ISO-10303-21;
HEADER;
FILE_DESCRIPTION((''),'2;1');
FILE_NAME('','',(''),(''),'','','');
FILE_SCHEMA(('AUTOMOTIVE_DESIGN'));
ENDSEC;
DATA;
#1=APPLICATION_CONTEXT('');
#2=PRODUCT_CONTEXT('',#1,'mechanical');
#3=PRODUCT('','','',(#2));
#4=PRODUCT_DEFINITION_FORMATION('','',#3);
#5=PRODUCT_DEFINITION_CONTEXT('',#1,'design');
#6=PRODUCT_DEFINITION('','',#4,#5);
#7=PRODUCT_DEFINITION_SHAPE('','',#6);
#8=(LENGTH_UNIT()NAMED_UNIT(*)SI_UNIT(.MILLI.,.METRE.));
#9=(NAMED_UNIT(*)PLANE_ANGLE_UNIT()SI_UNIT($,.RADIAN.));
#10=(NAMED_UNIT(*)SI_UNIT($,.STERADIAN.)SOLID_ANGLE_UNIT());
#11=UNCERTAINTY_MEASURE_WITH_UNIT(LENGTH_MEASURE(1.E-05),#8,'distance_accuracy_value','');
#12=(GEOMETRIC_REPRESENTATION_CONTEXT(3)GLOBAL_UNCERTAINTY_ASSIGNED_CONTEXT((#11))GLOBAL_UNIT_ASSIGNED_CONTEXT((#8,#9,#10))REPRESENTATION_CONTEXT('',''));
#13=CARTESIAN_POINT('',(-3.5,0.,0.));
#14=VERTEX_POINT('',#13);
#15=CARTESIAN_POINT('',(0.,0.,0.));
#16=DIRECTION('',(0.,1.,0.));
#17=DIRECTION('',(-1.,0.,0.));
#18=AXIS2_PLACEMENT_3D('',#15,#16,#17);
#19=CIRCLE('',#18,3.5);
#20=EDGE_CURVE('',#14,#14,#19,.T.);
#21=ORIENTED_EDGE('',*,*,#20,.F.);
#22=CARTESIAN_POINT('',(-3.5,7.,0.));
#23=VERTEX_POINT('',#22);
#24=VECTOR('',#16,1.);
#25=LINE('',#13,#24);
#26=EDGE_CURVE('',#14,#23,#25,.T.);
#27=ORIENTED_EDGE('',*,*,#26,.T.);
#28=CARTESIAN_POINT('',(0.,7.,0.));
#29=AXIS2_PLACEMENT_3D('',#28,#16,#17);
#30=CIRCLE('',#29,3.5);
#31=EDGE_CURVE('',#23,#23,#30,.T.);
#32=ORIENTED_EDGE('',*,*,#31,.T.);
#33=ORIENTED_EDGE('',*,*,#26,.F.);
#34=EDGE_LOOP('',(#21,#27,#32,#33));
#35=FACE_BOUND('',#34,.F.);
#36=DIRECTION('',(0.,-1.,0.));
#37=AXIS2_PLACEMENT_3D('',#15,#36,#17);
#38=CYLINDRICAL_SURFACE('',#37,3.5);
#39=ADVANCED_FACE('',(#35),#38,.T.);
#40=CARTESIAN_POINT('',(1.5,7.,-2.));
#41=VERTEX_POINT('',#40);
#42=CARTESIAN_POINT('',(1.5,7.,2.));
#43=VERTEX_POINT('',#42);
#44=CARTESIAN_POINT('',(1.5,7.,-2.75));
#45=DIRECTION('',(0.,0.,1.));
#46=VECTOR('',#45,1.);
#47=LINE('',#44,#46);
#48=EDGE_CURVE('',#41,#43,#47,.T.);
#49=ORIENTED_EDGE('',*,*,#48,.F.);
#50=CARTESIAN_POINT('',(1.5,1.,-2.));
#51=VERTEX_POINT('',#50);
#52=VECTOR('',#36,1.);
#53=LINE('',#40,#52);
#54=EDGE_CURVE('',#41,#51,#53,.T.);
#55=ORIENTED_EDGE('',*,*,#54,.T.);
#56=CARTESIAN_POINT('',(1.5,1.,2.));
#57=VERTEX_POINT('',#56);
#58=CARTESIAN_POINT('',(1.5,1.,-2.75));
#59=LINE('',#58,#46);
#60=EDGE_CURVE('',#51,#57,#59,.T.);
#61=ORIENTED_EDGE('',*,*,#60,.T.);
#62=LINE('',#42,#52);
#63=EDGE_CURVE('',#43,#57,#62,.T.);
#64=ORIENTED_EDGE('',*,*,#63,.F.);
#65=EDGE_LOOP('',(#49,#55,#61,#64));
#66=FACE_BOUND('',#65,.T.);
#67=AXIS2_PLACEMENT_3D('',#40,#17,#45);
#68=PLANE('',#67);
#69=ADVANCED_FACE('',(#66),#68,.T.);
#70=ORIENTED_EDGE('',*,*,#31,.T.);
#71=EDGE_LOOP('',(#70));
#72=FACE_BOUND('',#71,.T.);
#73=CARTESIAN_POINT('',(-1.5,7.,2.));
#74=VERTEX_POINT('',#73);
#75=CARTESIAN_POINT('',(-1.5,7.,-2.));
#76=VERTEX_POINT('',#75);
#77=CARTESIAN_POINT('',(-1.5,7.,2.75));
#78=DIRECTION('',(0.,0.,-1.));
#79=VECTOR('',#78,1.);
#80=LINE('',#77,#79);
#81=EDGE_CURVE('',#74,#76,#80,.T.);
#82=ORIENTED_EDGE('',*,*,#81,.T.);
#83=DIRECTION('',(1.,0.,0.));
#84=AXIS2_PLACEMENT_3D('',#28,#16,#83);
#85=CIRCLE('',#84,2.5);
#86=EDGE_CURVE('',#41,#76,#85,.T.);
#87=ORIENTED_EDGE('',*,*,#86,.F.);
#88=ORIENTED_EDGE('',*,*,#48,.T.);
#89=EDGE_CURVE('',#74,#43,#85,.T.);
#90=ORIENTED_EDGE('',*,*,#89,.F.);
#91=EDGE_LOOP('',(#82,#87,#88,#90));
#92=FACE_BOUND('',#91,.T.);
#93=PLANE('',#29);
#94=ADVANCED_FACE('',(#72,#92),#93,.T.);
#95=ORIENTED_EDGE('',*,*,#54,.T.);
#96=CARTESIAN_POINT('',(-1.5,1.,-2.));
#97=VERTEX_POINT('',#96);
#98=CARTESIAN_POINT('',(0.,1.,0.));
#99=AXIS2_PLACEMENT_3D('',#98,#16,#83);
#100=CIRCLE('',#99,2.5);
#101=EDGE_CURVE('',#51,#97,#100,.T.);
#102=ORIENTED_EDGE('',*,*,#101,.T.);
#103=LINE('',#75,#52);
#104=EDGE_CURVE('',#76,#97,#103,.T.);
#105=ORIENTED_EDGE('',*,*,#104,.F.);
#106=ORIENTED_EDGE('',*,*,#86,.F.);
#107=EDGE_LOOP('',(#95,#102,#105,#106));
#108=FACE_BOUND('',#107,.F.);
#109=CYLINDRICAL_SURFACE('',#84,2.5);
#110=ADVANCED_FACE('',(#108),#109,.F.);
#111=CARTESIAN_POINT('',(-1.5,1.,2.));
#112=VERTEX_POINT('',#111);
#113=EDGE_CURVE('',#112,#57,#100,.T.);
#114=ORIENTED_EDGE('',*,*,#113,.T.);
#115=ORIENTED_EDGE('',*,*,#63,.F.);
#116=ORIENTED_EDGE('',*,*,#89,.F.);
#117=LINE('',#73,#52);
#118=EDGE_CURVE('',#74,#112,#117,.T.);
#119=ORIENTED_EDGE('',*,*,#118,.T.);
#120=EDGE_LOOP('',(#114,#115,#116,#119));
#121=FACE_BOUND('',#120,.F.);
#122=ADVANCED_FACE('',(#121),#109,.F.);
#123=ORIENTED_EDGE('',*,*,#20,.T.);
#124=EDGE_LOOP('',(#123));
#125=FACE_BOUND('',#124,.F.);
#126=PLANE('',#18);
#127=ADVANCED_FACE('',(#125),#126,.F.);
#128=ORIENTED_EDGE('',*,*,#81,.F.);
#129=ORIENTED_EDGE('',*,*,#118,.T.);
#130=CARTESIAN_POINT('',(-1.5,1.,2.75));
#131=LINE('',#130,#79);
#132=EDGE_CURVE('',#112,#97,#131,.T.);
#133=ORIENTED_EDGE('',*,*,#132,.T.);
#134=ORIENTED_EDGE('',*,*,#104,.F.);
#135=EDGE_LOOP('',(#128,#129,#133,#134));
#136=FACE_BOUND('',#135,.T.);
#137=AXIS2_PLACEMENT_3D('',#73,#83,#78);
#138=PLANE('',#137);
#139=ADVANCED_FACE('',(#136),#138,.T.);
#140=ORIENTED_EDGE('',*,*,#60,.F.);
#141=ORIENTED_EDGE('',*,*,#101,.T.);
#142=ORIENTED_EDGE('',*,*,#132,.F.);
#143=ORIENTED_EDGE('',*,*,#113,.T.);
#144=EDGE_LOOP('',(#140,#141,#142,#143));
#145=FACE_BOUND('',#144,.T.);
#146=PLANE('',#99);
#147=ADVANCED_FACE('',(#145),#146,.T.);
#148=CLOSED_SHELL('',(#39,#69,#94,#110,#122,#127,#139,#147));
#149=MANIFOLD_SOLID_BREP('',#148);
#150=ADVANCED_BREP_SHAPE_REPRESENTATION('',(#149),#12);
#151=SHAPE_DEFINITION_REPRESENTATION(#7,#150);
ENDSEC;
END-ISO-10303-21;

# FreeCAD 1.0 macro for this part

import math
import FreeCAD as App
import Part
import Sketcher
Q = App.Units.Quantity

doc = App.newDocument("Part")
params = doc.addObject("Spreadsheet::Sheet", "Params")
for row, (alias, value) in enumerate([
    ("sketch1_diameter", "7 mm"),
    ("pad1_length", "7 mm"),
    ("sketch2_radius", "2.5 mm"),
    ("pocket1_length", "6 mm"),
], start=1):
    params.set(f"A{row}", alias)
    params.set(f"B{row}", "=" + value)
    params.setAlias(f"B{row}", alias)

body = doc.addObject("PartDesign::Body", "Body")

sketch1 = doc.addObject("Sketcher::SketchObject", "Sketch")
body.addObject(sketch1)
sketch1.AttachmentSupport = (doc.XZ_Plane, [""])
sketch1.MapMode = "FlatFace"
sketch1.addGeometry(Part.Circle(App.Vector(0, 0, 0), App.Vector(0, 0, 1), 3.5), False)
sketch1.addConstraint(Sketcher.Constraint("Coincident", 0, 3, -1, 1))
sketch1.addConstraint(Sketcher.Constraint("Diameter", 0, Q("7 mm")))
sketch1.setExpression("Constraints[1]", "Params.sketch1_diameter")
pad1 = doc.addObject("PartDesign::Pad", "Pad")
body.addObject(pad1)
pad1.Profile = sketch1
pad1.setExpression("Length", "Params.pad1_length")
pad1.Reversed = True

sketch2 = doc.addObject("Sketcher::SketchObject", "Sketch001")
body.addObject(sketch2)
sketch2.AttachmentSupport = (doc.XZ_Plane, [""])
sketch2.MapMode = "FlatFace"
sketch2.AttachmentOffset = App.Placement(App.Vector(0, 0, -7), App.Rotation())
sketch2.addGeometry(Part.LineSegment(App.Vector(1.5, 2, 0), App.Vector(1.5, -2, 0)), False)
sketch2.addGeometry(Part.ArcOfCircle(Part.Circle(App.Vector(0, 0, 0), App.Vector(0, 0, 1), 2.5), math.radians(-127), math.radians(-53)), False)
sketch2.addGeometry(Part.LineSegment(App.Vector(-1.5, -2, 0), App.Vector(-1.5, 2, 0)), False)
sketch2.addGeometry(Part.ArcOfCircle(Part.Circle(App.Vector(0, 0, 0), App.Vector(0, 0, 1), 2.5), math.radians(53), math.radians(127)), False)
sketch2.addConstraint(Sketcher.Constraint("Coincident", 0, 2, 1, 2))
sketch2.addConstraint(Sketcher.Constraint("Coincident", 1, 1, 2, 1))
sketch2.addConstraint(Sketcher.Constraint("Coincident", 2, 2, 3, 2))
sketch2.addConstraint(Sketcher.Constraint("Coincident", 3, 1, 0, 1))
sketch2.addConstraint(Sketcher.Constraint("Vertical", 0))
sketch2.addConstraint(Sketcher.Constraint("Vertical", 2))
sketch2.addConstraint(Sketcher.Constraint("Coincident", 1, 3, -1, 1))
sketch2.addConstraint(Sketcher.Constraint("Coincident", 3, 3, -1, 1))
sketch2.addConstraint(Sketcher.Constraint("Equal", 1, 3))
sketch2.addConstraint(Sketcher.Constraint("Horizontal", 0, 2, 1, 1))
sketch2.addConstraint(Sketcher.Constraint("Radius", 1, Q("2.5 mm")))
sketch2.addConstraint(Sketcher.Constraint("DistanceX", 1, 1, 0, 2, Q("3 mm")))
sketch2.setExpression("Constraints[10]", "Params.sketch2_radius")
pocket1 = doc.addObject("PartDesign::Pocket", "Pocket")
body.addObject(pocket1)
pocket1.Profile = sketch2
pocket1.setExpression("Length", "Params.pocket1_length")
pocket1.Reversed = True

doc.recompute()
